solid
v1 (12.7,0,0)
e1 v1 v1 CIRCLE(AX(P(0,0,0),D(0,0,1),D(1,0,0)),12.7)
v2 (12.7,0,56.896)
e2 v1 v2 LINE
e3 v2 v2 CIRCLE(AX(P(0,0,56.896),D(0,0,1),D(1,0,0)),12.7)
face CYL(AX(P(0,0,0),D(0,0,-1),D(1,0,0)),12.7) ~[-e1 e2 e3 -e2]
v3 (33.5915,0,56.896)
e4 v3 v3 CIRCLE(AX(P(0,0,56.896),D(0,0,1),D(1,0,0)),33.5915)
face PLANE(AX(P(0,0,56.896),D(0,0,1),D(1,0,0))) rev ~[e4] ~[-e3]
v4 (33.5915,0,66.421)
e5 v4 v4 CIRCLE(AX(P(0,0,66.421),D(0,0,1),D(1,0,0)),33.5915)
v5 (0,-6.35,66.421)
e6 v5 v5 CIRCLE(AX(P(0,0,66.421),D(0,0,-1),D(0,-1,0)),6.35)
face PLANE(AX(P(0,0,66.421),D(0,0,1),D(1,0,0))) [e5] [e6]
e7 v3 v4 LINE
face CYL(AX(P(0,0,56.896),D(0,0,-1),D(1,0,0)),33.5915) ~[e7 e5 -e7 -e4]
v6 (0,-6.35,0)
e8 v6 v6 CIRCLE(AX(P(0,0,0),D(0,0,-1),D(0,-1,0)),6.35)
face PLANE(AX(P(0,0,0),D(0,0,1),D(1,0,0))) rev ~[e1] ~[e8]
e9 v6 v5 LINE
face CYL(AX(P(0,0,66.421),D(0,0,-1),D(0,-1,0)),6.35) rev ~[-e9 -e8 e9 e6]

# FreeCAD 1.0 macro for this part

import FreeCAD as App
import Part
import Sketcher
from FreeCAD import Vector
Q = App.Units.Quantity

doc = App.newDocument("Part")
body = doc.addObject("PartDesign::Body", "Body")

sketch1 = body.newObject("Sketcher::SketchObject", "Sketch")
sketch1.AttachmentSupport = (doc.getObject("XY_Plane"), [""])
sketch1.MapMode = "FlatFace"
sketch1.addGeometry(Part.Circle(Vector(0, 0, 0), Vector(0, 0, 1), 13), False)
sketch1.addConstraint([
    Sketcher.Constraint("Coincident", 0, 3, -1, 1),
    Sketcher.Constraint("Diameter", 0, Q("1 in")),
])
pad1 = body.newObject("PartDesign::Pad", "Pad")
pad1.Profile = sketch1
pad1.Length = Q("2.24 in")

sketch2 = body.newObject("Sketcher::SketchObject", "Sketch001")
sketch2.AttachmentSupport = (doc.getObject("XY_Plane"), [""])
sketch2.MapMode = "FlatFace"
sketch2.AttachmentOffset = App.Placement(Vector(0, 0, 2.24 * 25.4), App.Rotation())
sketch2.addGeometry(Part.Circle(Vector(0, 0, 0), Vector(0, 0, 1), 6), False)
sketch2.addConstraint([
    Sketcher.Constraint("Coincident", 0, 3, -1, 1),
    Sketcher.Constraint("Diameter", 0, Q("0.5 in")),
])
doc.recompute()
hole = body.newObject("PartDesign::Hole", "Hole")
hole.Profile = sketch2
hole.ThreadType = "None"
hole.Diameter = Q("0.5 in")
hole.DepthType = "ThroughAll"

sketch3 = body.newObject("Sketcher::SketchObject", "Sketch002")
sketch3.AttachmentSupport = (doc.getObject("XY_Plane"), [""])
sketch3.MapMode = "FlatFace"
sketch3.AttachmentOffset = App.Placement(Vector(0, 0, 2.24 * 25.4), App.Rotation())
sketch3.addGeometry(Part.Circle(Vector(0, 0, 0), Vector(0, 0, 1), 34), False)
sketch3.addConstraint([
    Sketcher.Constraint("Coincident", 0, 3, -1, 1),
    Sketcher.Constraint("Diameter", 0, Q("2.645 in")),
])
pad2 = body.newObject("PartDesign::Pad", "Pad001")
pad2.Profile = sketch3
pad2.Length = Q("0.375 in")

sketch4 = body.newObject("Sketcher::SketchObject", "Sketch003")
sketch4.AttachmentSupport = (doc.getObject("XY_Plane"), [""])
sketch4.MapMode = "FlatFace"
sketch4.AttachmentOffset = App.Placement(Vector(0, 0, 2.615 * 25.4), App.Rotation())
sketch4.addGeometry(Part.Circle(Vector(0, 0, 0), Vector(0, 0, 1), 6), False)
sketch4.addConstraint([
    Sketcher.Constraint("Coincident", 0, 3, -1, 1),
    Sketcher.Constraint("Diameter", 0, Q("0.5 in")),
])
doc.recompute()
hole2 = body.newObject("PartDesign::Hole", "Hole001")
hole2.Profile = sketch4
hole2.ThreadType = "None"
hole2.Diameter = Q("0.5 in")
hole2.DepthType = "ThroughAll"

doc.recompute()
